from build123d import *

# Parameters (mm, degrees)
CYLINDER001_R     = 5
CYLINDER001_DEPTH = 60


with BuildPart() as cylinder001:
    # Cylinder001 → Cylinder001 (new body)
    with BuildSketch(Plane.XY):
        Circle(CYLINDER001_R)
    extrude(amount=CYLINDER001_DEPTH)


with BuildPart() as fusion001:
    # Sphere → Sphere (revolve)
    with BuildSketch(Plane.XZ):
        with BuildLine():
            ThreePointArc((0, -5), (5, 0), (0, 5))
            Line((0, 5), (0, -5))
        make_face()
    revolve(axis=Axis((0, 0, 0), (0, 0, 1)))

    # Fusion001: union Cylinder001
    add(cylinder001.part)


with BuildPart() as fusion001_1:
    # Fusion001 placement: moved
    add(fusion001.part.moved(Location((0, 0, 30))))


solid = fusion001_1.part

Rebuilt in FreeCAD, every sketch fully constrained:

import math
import FreeCAD as App
import Part
import Sketcher

V = App.Vector

doc = App.newDocument("Part")
body = doc.addObject("PartDesign::Body", "Body")

# Sketch on XY plane
sketch1 = body.newObject("Sketcher::SketchObject", "Sketch")
sketch1.AttachmentSupport = (doc.getObject("XY_Plane"), [""])
sketch1.MapMode = "FlatFace"
sketch1.addGeometry(Part.Circle(V(0, 0, 0), V(0, 0, 1), 5), False)
sketch1.addConstraint(Sketcher.Constraint("Coincident", 0, 3, -1, 1))
sketch1.addConstraint(Sketcher.Constraint("Diameter", 0, 10.0))
pad1 = body.newObject("PartDesign::Pad", "Pad")
pad1.Profile = sketch1
pad1.Length = 60
body2 = doc.addObject("PartDesign::Body", "Body001")

# Sketch on XZ plane
sketch2 = body2.newObject("Sketcher::SketchObject", "Sketch001")
sketch2.AttachmentSupport = (doc.getObject("XZ_Plane001"), [""])
sketch2.MapMode = "FlatFace"
sketch2.addGeometry(Part.ArcOfCircle(Part.Circle(V(0, 0, 0), V(0, 0, 1), 5), math.radians(-90), math.radians(90)), False)
sketch2.addGeometry(Part.LineSegment(V(0, 5, 0), V(0, -5, 0)), False)
sketch2.addConstraint(Sketcher.Constraint("Coincident", 0, 1, 1, 2))
sketch2.addConstraint(Sketcher.Constraint("Coincident", 1, 1, 0, 2))
sketch2.addConstraint(Sketcher.Constraint("Vertical", 1))
sketch2.addConstraint(Sketcher.Constraint("Coincident", 0, 3, -1, 1))
sketch2.addConstraint(Sketcher.Constraint("PointOnObject", 0, 1, -2))
sketch2.addConstraint(Sketcher.Constraint("Radius", 0, 5.0))
revolution = body2.newObject("PartDesign::Revolution", "Revolution")
revolution.Profile = sketch2
revolution.ReferenceAxis = (sketch2, ["V_Axis"])
revolution.Angle = 360
doc.recompute()

boolean = body2.newObject("PartDesign::Boolean", "Boolean")
boolean.Type = "Fuse"
boolean.addObjects([body])
body3 = doc.addObject("PartDesign::Body", "Body002")
doc.recompute()

body2.Placement = App.Placement(V(0, 0, 30), App.Rotation(V(0, 0, 1), 0))
boolean2 = body3.newObject("PartDesign::Boolean", "Boolean001")
boolean2.Type = "Fuse"
boolean2.addObjects([body2])

doc.recompute()
